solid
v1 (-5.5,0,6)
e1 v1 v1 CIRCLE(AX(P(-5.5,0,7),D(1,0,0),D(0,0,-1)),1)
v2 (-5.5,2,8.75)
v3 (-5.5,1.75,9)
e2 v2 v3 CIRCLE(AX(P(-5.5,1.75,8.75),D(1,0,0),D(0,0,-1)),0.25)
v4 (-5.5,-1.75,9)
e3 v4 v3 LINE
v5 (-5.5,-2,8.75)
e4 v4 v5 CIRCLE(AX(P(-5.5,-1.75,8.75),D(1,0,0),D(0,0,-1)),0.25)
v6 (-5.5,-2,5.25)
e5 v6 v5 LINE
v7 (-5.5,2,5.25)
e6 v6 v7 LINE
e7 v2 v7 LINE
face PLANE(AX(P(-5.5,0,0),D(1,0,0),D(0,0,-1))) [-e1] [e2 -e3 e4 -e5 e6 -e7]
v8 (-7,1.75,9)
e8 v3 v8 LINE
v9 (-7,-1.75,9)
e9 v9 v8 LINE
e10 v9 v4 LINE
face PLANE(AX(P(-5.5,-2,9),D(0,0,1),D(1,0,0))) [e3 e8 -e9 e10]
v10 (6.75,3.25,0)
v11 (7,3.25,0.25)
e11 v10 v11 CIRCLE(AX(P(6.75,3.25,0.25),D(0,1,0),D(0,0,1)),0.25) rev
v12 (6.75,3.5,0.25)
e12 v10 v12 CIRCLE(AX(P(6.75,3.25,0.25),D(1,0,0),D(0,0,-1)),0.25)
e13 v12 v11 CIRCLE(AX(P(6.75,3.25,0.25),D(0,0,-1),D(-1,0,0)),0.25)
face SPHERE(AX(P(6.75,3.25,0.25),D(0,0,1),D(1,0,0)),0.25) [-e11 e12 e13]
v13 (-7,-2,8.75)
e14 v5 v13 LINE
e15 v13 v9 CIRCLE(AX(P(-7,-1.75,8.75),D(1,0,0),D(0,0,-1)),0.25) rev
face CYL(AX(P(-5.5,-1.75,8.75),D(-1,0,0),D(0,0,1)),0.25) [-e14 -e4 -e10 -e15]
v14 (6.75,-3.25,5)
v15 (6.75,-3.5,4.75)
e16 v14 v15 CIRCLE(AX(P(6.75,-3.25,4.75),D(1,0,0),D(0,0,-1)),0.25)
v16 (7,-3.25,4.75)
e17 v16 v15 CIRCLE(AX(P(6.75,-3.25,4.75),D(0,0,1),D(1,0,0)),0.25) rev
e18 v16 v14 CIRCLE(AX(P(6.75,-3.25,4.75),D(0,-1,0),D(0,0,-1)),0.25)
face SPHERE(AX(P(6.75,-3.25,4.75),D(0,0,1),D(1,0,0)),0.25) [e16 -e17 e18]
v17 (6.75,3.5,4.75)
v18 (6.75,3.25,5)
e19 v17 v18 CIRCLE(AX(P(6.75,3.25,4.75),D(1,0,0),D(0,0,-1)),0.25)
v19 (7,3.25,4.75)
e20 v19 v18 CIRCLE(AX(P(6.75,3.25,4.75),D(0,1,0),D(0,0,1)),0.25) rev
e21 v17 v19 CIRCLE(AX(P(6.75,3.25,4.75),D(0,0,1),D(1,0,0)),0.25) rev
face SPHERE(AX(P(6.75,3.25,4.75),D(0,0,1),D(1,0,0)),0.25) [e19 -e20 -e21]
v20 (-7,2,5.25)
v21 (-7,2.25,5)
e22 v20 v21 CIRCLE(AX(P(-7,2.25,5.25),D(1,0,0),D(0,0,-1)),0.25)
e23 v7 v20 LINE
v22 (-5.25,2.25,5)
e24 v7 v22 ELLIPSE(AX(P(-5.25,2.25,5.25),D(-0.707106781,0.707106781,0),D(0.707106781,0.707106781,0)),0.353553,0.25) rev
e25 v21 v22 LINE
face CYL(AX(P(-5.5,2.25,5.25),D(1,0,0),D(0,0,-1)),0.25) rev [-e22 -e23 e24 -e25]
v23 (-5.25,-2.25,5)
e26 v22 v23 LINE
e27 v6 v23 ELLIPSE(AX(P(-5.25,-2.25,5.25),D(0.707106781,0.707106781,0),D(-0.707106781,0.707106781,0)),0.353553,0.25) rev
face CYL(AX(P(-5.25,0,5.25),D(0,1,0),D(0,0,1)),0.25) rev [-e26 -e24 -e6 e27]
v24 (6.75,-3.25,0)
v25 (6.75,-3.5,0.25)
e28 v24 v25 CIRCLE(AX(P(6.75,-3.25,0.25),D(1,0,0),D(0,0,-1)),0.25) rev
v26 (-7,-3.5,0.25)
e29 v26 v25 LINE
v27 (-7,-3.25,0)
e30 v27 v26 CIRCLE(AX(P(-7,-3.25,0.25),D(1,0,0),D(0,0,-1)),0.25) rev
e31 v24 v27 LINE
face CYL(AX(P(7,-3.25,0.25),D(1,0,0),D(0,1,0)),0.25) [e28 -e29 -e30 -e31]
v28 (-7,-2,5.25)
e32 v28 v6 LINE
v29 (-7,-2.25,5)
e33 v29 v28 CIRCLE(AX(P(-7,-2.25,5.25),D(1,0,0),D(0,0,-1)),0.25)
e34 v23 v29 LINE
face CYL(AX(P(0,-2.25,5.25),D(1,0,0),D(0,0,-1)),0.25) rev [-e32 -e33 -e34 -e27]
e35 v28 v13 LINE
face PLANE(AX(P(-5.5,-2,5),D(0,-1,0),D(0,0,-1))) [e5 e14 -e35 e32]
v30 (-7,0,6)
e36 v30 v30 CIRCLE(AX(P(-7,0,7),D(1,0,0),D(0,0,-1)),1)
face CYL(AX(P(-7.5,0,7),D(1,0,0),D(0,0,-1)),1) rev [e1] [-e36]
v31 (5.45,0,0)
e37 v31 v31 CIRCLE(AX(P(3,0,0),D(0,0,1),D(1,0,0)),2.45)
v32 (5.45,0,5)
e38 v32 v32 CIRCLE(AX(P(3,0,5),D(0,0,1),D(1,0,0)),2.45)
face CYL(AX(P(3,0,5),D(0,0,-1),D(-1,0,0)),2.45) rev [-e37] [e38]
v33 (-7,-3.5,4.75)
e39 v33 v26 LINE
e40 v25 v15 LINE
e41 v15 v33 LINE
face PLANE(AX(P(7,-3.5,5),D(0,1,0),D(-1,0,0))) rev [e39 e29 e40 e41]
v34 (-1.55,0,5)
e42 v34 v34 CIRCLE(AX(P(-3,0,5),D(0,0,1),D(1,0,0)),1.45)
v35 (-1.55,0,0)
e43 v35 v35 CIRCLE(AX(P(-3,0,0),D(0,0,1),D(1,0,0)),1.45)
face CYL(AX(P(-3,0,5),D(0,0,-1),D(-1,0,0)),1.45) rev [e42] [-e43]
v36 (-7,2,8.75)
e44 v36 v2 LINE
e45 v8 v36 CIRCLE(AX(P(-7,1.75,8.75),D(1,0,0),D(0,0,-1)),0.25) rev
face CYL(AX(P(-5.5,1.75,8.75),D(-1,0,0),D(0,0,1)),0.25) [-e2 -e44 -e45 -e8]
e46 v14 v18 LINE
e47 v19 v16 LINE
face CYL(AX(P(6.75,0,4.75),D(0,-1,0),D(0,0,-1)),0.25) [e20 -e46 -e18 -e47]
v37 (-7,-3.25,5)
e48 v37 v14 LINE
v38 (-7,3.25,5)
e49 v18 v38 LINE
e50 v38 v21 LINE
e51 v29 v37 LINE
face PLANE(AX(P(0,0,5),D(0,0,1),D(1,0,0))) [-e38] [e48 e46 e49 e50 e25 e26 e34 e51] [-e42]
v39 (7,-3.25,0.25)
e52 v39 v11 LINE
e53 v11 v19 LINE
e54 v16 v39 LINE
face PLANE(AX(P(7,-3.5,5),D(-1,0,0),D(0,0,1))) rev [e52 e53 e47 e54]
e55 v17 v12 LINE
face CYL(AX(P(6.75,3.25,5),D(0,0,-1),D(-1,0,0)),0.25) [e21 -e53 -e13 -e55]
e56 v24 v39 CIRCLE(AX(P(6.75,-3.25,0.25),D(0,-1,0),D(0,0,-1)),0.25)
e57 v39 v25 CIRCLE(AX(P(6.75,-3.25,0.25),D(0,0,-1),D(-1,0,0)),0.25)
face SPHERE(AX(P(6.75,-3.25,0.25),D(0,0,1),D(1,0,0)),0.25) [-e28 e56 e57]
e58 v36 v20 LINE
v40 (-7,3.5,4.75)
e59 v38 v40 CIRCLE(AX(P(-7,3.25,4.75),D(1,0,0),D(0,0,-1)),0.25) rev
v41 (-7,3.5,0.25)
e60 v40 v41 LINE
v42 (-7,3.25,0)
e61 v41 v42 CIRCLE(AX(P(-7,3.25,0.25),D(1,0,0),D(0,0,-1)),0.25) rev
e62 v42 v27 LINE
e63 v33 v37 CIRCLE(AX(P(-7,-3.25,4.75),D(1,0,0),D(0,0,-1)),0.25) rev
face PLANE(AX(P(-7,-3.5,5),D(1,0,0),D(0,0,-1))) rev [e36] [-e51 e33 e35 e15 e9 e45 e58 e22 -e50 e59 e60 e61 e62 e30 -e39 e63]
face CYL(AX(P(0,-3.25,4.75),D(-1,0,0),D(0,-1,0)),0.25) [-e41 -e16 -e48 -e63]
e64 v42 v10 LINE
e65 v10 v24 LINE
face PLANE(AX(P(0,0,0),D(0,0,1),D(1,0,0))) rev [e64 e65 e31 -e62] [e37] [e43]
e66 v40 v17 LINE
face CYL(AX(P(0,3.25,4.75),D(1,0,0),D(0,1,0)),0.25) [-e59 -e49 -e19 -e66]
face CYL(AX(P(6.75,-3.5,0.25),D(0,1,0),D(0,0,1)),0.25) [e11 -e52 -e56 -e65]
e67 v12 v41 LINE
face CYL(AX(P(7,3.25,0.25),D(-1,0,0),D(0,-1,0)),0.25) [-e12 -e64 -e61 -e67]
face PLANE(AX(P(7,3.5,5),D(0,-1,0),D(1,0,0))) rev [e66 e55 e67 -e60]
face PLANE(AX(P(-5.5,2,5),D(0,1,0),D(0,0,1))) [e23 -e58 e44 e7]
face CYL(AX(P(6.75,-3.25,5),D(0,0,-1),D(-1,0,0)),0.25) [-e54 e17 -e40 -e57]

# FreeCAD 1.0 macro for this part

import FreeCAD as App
import Part
import Sketcher
from FreeCAD import Vector
Q = App.Units.Quantity


def edges_at(feature, points):
    """Names of the edges that pass closest to the given points."""
    edges = feature.Shape.Edges
    near = lambda p: min(range(len(edges)), key=lambda i: edges[i].distToShape(Part.Vertex(*p))[0])
    return sorted({f"Edge{near(p) + 1}" for p in points})

doc = App.newDocument("Part")
params = doc.addObject("Spreadsheet::Sheet", "Params")
for row, (alias, value) in enumerate([
    ("sketch1_width", "14 mm"),
    ("sketch1_height", "7 mm"),
    ("pad1_length", "5 mm"),
    ("sketch2_diameter", "4.9 mm"),
    ("sketch2_diameter2", "2.9 mm"),
    ("sketch3_width", "4 mm"),
    ("pad2_length", "1.5 mm"),
    ("sketch4_diameter", "2 mm"),
    ("pocket2_length", "2 mm"),
    ("fillet_radius", "0.25 mm"),
], start=1):
    params.set(f"A{row}", alias)
    params.set(f"B{row}", "=" + value)
    params.setAlias(f"B{row}", alias)

body = doc.addObject("PartDesign::Body", "Body")

# Sketch on XY plane
sketch1 = body.newObject("Sketcher::SketchObject", "Sketch")
sketch1.AttachmentSupport = (doc.getObject("XY_Plane"), [""])
sketch1.MapMode = "FlatFace"
sketch1.addGeometry([
    Part.LineSegment(Vector(-7, 3.5, 0), Vector(-7, -3.5, 0)),
    Part.LineSegment(Vector(-7, -3.5, 0), Vector(7, -3.5, 0)),
    Part.LineSegment(Vector(7, -3.5, 0), Vector(7, 3.5, 0)),
    Part.LineSegment(Vector(7, 3.5, 0), Vector(-7, 3.5, 0)),
], False)
sketch1.addConstraint([
    Sketcher.Constraint("Coincident", 0, 2, 1, 1),
    Sketcher.Constraint("Coincident", 1, 2, 2, 1),
    Sketcher.Constraint("Coincident", 2, 2, 3, 1),
    Sketcher.Constraint("Coincident", 3, 2, 0, 1),
    Sketcher.Constraint("Vertical", 0),
    Sketcher.Constraint("Horizontal", 1),
    Sketcher.Constraint("Vertical", 2),
    Sketcher.Constraint("Horizontal", 3),
    Sketcher.Constraint("Symmetric", 0, 2, 2, 2, -1, 1),
    Sketcher.Constraint("DistanceX", 1, 1, 1, 2, Q("14 mm")),
    Sketcher.Constraint("DistanceY", 0, 2, 0, 1, Q("7 mm")),
])
sketch1.setExpression("Constraints[9]", "Params.sketch1_width")
sketch1.setExpression("Constraints[10]", "Params.sketch1_height")
pad1 = body.newObject("PartDesign::Pad", "Pad")
pad1.Profile = sketch1
pad1.setExpression("Length", "Params.pad1_length")

# Sketch on XY plane
sketch2 = body.newObject("Sketcher::SketchObject", "Sketch001")
sketch2.AttachmentSupport = (doc.getObject("XY_Plane"), [""])
sketch2.MapMode = "FlatFace"
sketch2.addGeometry([
    Part.Circle(Vector(3, 0, 0), Vector(0, 0, 1), 2.45),
    Part.Circle(Vector(-3, 0, 0), Vector(0, 0, 1), 1.45),
], False)
sketch2.addConstraint([
    Sketcher.Constraint("Symmetric", 0, 3, 1, 3, -1, 1),
    Sketcher.Constraint("PointOnObject", 0, 3, -1),
    Sketcher.Constraint("Diameter", 0, Q("4.9 mm")),
    Sketcher.Constraint("Diameter", 1, Q("2.9 mm")),
    Sketcher.Constraint("DistanceX", -1, 1, 0, 3, Q("3 mm")),
])
sketch2.setExpression("Constraints[2]", "Params.sketch2_diameter")
sketch2.setExpression("Constraints[3]", "Params.sketch2_diameter2")
pocket1 = body.newObject("PartDesign::Pocket", "Pocket")
pocket1.Profile = sketch2
pocket1.Type = "ThroughAll"
pocket1.Reversed = True

# Sketch on YZ plane
sketch3 = body.newObject("Sketcher::SketchObject", "Sketch002")
sketch3.AttachmentSupport = (doc.getObject("YZ_Plane"), [""])
sketch3.MapMode = "FlatFace"
sketch3.AttachmentOffset = App.Placement(Vector(0, 0, -7), App.Rotation())
sketch3.addGeometry([
    Part.LineSegment(Vector(2, 5, 0), Vector(-2, 5, 0)),
    Part.LineSegment(Vector(-2, 5, 0), Vector(-2, 9, 0)),
    Part.LineSegment(Vector(-2, 9, 0), Vector(2, 9, 0)),
    Part.LineSegment(Vector(2, 9, 0), Vector(2, 5, 0)),
], False)
sketch3.addConstraint([
    Sketcher.Constraint("Coincident", 0, 2, 1, 1),
    Sketcher.Constraint("Coincident", 1, 2, 2, 1),
    Sketcher.Constraint("Coincident", 2, 2, 3, 1),
    Sketcher.Constraint("Coincident", 3, 2, 0, 1),
    Sketcher.Constraint("Horizontal", 0),
    Sketcher.Constraint("Vertical", 1),
    Sketcher.Constraint("Horizontal", 2),
    Sketcher.Constraint("Vertical", 3),
    Sketcher.Constraint("Equal", 2, 1),
    Sketcher.Constraint("DistanceX", 0, 2, 0, 1, Q("4 mm")),
    Sketcher.Constraint("DistanceX", 0, 2, -1, 1, Q("2 mm")),
    Sketcher.Constraint("DistanceY", -1, 1, 0, 2, Q("5 mm")),
])
sketch3.setExpression("Constraints[9]", "Params.sketch3_width")
pad2 = body.newObject("PartDesign::Pad", "Pad001")
pad2.Profile = sketch3
pad2.setExpression("Length", "Params.pad2_length")

# Sketch on YZ plane
sketch4 = body.newObject("Sketcher::SketchObject", "Sketch003")
sketch4.AttachmentSupport = (doc.getObject("YZ_Plane"), [""])
sketch4.MapMode = "FlatFace"
sketch4.AttachmentOffset = App.Placement(Vector(0, 0, -5.5), App.Rotation())
sketch4.addGeometry(Part.Circle(Vector(0, 7, 0), Vector(0, 0, 1), 1), False)
sketch4.addConstraint([
    Sketcher.Constraint("PointOnObject", 0, 3, -2),
    Sketcher.Constraint("Diameter", 0, Q("2 mm")),
    Sketcher.Constraint("DistanceY", -1, 1, 0, 3, Q("7 mm")),
])
sketch4.setExpression("Constraints[1]", "Params.sketch4_diameter")
pocket2 = body.newObject("PartDesign::Pocket", "Pocket001")
pocket2.Profile = sketch4
pocket2.setExpression("Length", "Params.pocket2_length")
doc.recompute()

fillet = body.newObject("PartDesign::Fillet", "Fillet")
fillet.Base = (pocket2, edges_at(pocket2, [
    (7, 0, 5),
    (0, 3.5, 5),
    (-5.5, 0, 5),
    (-6.25, -2, 5),
    (-6.25, 2, 5),
    (-6.25, 2, 9),
    (-6.25, -2, 9),
    (0, 3.5, 0),
    (7, 0, 0),
    (0, -3.5, 0),
    (7, 3.5, 2.5),
    (7, -3.5, 2.5),
    (0, -3.5, 5),
]))
fillet.setExpression("Radius", "Params.fillet_radius")

doc.recompute()
